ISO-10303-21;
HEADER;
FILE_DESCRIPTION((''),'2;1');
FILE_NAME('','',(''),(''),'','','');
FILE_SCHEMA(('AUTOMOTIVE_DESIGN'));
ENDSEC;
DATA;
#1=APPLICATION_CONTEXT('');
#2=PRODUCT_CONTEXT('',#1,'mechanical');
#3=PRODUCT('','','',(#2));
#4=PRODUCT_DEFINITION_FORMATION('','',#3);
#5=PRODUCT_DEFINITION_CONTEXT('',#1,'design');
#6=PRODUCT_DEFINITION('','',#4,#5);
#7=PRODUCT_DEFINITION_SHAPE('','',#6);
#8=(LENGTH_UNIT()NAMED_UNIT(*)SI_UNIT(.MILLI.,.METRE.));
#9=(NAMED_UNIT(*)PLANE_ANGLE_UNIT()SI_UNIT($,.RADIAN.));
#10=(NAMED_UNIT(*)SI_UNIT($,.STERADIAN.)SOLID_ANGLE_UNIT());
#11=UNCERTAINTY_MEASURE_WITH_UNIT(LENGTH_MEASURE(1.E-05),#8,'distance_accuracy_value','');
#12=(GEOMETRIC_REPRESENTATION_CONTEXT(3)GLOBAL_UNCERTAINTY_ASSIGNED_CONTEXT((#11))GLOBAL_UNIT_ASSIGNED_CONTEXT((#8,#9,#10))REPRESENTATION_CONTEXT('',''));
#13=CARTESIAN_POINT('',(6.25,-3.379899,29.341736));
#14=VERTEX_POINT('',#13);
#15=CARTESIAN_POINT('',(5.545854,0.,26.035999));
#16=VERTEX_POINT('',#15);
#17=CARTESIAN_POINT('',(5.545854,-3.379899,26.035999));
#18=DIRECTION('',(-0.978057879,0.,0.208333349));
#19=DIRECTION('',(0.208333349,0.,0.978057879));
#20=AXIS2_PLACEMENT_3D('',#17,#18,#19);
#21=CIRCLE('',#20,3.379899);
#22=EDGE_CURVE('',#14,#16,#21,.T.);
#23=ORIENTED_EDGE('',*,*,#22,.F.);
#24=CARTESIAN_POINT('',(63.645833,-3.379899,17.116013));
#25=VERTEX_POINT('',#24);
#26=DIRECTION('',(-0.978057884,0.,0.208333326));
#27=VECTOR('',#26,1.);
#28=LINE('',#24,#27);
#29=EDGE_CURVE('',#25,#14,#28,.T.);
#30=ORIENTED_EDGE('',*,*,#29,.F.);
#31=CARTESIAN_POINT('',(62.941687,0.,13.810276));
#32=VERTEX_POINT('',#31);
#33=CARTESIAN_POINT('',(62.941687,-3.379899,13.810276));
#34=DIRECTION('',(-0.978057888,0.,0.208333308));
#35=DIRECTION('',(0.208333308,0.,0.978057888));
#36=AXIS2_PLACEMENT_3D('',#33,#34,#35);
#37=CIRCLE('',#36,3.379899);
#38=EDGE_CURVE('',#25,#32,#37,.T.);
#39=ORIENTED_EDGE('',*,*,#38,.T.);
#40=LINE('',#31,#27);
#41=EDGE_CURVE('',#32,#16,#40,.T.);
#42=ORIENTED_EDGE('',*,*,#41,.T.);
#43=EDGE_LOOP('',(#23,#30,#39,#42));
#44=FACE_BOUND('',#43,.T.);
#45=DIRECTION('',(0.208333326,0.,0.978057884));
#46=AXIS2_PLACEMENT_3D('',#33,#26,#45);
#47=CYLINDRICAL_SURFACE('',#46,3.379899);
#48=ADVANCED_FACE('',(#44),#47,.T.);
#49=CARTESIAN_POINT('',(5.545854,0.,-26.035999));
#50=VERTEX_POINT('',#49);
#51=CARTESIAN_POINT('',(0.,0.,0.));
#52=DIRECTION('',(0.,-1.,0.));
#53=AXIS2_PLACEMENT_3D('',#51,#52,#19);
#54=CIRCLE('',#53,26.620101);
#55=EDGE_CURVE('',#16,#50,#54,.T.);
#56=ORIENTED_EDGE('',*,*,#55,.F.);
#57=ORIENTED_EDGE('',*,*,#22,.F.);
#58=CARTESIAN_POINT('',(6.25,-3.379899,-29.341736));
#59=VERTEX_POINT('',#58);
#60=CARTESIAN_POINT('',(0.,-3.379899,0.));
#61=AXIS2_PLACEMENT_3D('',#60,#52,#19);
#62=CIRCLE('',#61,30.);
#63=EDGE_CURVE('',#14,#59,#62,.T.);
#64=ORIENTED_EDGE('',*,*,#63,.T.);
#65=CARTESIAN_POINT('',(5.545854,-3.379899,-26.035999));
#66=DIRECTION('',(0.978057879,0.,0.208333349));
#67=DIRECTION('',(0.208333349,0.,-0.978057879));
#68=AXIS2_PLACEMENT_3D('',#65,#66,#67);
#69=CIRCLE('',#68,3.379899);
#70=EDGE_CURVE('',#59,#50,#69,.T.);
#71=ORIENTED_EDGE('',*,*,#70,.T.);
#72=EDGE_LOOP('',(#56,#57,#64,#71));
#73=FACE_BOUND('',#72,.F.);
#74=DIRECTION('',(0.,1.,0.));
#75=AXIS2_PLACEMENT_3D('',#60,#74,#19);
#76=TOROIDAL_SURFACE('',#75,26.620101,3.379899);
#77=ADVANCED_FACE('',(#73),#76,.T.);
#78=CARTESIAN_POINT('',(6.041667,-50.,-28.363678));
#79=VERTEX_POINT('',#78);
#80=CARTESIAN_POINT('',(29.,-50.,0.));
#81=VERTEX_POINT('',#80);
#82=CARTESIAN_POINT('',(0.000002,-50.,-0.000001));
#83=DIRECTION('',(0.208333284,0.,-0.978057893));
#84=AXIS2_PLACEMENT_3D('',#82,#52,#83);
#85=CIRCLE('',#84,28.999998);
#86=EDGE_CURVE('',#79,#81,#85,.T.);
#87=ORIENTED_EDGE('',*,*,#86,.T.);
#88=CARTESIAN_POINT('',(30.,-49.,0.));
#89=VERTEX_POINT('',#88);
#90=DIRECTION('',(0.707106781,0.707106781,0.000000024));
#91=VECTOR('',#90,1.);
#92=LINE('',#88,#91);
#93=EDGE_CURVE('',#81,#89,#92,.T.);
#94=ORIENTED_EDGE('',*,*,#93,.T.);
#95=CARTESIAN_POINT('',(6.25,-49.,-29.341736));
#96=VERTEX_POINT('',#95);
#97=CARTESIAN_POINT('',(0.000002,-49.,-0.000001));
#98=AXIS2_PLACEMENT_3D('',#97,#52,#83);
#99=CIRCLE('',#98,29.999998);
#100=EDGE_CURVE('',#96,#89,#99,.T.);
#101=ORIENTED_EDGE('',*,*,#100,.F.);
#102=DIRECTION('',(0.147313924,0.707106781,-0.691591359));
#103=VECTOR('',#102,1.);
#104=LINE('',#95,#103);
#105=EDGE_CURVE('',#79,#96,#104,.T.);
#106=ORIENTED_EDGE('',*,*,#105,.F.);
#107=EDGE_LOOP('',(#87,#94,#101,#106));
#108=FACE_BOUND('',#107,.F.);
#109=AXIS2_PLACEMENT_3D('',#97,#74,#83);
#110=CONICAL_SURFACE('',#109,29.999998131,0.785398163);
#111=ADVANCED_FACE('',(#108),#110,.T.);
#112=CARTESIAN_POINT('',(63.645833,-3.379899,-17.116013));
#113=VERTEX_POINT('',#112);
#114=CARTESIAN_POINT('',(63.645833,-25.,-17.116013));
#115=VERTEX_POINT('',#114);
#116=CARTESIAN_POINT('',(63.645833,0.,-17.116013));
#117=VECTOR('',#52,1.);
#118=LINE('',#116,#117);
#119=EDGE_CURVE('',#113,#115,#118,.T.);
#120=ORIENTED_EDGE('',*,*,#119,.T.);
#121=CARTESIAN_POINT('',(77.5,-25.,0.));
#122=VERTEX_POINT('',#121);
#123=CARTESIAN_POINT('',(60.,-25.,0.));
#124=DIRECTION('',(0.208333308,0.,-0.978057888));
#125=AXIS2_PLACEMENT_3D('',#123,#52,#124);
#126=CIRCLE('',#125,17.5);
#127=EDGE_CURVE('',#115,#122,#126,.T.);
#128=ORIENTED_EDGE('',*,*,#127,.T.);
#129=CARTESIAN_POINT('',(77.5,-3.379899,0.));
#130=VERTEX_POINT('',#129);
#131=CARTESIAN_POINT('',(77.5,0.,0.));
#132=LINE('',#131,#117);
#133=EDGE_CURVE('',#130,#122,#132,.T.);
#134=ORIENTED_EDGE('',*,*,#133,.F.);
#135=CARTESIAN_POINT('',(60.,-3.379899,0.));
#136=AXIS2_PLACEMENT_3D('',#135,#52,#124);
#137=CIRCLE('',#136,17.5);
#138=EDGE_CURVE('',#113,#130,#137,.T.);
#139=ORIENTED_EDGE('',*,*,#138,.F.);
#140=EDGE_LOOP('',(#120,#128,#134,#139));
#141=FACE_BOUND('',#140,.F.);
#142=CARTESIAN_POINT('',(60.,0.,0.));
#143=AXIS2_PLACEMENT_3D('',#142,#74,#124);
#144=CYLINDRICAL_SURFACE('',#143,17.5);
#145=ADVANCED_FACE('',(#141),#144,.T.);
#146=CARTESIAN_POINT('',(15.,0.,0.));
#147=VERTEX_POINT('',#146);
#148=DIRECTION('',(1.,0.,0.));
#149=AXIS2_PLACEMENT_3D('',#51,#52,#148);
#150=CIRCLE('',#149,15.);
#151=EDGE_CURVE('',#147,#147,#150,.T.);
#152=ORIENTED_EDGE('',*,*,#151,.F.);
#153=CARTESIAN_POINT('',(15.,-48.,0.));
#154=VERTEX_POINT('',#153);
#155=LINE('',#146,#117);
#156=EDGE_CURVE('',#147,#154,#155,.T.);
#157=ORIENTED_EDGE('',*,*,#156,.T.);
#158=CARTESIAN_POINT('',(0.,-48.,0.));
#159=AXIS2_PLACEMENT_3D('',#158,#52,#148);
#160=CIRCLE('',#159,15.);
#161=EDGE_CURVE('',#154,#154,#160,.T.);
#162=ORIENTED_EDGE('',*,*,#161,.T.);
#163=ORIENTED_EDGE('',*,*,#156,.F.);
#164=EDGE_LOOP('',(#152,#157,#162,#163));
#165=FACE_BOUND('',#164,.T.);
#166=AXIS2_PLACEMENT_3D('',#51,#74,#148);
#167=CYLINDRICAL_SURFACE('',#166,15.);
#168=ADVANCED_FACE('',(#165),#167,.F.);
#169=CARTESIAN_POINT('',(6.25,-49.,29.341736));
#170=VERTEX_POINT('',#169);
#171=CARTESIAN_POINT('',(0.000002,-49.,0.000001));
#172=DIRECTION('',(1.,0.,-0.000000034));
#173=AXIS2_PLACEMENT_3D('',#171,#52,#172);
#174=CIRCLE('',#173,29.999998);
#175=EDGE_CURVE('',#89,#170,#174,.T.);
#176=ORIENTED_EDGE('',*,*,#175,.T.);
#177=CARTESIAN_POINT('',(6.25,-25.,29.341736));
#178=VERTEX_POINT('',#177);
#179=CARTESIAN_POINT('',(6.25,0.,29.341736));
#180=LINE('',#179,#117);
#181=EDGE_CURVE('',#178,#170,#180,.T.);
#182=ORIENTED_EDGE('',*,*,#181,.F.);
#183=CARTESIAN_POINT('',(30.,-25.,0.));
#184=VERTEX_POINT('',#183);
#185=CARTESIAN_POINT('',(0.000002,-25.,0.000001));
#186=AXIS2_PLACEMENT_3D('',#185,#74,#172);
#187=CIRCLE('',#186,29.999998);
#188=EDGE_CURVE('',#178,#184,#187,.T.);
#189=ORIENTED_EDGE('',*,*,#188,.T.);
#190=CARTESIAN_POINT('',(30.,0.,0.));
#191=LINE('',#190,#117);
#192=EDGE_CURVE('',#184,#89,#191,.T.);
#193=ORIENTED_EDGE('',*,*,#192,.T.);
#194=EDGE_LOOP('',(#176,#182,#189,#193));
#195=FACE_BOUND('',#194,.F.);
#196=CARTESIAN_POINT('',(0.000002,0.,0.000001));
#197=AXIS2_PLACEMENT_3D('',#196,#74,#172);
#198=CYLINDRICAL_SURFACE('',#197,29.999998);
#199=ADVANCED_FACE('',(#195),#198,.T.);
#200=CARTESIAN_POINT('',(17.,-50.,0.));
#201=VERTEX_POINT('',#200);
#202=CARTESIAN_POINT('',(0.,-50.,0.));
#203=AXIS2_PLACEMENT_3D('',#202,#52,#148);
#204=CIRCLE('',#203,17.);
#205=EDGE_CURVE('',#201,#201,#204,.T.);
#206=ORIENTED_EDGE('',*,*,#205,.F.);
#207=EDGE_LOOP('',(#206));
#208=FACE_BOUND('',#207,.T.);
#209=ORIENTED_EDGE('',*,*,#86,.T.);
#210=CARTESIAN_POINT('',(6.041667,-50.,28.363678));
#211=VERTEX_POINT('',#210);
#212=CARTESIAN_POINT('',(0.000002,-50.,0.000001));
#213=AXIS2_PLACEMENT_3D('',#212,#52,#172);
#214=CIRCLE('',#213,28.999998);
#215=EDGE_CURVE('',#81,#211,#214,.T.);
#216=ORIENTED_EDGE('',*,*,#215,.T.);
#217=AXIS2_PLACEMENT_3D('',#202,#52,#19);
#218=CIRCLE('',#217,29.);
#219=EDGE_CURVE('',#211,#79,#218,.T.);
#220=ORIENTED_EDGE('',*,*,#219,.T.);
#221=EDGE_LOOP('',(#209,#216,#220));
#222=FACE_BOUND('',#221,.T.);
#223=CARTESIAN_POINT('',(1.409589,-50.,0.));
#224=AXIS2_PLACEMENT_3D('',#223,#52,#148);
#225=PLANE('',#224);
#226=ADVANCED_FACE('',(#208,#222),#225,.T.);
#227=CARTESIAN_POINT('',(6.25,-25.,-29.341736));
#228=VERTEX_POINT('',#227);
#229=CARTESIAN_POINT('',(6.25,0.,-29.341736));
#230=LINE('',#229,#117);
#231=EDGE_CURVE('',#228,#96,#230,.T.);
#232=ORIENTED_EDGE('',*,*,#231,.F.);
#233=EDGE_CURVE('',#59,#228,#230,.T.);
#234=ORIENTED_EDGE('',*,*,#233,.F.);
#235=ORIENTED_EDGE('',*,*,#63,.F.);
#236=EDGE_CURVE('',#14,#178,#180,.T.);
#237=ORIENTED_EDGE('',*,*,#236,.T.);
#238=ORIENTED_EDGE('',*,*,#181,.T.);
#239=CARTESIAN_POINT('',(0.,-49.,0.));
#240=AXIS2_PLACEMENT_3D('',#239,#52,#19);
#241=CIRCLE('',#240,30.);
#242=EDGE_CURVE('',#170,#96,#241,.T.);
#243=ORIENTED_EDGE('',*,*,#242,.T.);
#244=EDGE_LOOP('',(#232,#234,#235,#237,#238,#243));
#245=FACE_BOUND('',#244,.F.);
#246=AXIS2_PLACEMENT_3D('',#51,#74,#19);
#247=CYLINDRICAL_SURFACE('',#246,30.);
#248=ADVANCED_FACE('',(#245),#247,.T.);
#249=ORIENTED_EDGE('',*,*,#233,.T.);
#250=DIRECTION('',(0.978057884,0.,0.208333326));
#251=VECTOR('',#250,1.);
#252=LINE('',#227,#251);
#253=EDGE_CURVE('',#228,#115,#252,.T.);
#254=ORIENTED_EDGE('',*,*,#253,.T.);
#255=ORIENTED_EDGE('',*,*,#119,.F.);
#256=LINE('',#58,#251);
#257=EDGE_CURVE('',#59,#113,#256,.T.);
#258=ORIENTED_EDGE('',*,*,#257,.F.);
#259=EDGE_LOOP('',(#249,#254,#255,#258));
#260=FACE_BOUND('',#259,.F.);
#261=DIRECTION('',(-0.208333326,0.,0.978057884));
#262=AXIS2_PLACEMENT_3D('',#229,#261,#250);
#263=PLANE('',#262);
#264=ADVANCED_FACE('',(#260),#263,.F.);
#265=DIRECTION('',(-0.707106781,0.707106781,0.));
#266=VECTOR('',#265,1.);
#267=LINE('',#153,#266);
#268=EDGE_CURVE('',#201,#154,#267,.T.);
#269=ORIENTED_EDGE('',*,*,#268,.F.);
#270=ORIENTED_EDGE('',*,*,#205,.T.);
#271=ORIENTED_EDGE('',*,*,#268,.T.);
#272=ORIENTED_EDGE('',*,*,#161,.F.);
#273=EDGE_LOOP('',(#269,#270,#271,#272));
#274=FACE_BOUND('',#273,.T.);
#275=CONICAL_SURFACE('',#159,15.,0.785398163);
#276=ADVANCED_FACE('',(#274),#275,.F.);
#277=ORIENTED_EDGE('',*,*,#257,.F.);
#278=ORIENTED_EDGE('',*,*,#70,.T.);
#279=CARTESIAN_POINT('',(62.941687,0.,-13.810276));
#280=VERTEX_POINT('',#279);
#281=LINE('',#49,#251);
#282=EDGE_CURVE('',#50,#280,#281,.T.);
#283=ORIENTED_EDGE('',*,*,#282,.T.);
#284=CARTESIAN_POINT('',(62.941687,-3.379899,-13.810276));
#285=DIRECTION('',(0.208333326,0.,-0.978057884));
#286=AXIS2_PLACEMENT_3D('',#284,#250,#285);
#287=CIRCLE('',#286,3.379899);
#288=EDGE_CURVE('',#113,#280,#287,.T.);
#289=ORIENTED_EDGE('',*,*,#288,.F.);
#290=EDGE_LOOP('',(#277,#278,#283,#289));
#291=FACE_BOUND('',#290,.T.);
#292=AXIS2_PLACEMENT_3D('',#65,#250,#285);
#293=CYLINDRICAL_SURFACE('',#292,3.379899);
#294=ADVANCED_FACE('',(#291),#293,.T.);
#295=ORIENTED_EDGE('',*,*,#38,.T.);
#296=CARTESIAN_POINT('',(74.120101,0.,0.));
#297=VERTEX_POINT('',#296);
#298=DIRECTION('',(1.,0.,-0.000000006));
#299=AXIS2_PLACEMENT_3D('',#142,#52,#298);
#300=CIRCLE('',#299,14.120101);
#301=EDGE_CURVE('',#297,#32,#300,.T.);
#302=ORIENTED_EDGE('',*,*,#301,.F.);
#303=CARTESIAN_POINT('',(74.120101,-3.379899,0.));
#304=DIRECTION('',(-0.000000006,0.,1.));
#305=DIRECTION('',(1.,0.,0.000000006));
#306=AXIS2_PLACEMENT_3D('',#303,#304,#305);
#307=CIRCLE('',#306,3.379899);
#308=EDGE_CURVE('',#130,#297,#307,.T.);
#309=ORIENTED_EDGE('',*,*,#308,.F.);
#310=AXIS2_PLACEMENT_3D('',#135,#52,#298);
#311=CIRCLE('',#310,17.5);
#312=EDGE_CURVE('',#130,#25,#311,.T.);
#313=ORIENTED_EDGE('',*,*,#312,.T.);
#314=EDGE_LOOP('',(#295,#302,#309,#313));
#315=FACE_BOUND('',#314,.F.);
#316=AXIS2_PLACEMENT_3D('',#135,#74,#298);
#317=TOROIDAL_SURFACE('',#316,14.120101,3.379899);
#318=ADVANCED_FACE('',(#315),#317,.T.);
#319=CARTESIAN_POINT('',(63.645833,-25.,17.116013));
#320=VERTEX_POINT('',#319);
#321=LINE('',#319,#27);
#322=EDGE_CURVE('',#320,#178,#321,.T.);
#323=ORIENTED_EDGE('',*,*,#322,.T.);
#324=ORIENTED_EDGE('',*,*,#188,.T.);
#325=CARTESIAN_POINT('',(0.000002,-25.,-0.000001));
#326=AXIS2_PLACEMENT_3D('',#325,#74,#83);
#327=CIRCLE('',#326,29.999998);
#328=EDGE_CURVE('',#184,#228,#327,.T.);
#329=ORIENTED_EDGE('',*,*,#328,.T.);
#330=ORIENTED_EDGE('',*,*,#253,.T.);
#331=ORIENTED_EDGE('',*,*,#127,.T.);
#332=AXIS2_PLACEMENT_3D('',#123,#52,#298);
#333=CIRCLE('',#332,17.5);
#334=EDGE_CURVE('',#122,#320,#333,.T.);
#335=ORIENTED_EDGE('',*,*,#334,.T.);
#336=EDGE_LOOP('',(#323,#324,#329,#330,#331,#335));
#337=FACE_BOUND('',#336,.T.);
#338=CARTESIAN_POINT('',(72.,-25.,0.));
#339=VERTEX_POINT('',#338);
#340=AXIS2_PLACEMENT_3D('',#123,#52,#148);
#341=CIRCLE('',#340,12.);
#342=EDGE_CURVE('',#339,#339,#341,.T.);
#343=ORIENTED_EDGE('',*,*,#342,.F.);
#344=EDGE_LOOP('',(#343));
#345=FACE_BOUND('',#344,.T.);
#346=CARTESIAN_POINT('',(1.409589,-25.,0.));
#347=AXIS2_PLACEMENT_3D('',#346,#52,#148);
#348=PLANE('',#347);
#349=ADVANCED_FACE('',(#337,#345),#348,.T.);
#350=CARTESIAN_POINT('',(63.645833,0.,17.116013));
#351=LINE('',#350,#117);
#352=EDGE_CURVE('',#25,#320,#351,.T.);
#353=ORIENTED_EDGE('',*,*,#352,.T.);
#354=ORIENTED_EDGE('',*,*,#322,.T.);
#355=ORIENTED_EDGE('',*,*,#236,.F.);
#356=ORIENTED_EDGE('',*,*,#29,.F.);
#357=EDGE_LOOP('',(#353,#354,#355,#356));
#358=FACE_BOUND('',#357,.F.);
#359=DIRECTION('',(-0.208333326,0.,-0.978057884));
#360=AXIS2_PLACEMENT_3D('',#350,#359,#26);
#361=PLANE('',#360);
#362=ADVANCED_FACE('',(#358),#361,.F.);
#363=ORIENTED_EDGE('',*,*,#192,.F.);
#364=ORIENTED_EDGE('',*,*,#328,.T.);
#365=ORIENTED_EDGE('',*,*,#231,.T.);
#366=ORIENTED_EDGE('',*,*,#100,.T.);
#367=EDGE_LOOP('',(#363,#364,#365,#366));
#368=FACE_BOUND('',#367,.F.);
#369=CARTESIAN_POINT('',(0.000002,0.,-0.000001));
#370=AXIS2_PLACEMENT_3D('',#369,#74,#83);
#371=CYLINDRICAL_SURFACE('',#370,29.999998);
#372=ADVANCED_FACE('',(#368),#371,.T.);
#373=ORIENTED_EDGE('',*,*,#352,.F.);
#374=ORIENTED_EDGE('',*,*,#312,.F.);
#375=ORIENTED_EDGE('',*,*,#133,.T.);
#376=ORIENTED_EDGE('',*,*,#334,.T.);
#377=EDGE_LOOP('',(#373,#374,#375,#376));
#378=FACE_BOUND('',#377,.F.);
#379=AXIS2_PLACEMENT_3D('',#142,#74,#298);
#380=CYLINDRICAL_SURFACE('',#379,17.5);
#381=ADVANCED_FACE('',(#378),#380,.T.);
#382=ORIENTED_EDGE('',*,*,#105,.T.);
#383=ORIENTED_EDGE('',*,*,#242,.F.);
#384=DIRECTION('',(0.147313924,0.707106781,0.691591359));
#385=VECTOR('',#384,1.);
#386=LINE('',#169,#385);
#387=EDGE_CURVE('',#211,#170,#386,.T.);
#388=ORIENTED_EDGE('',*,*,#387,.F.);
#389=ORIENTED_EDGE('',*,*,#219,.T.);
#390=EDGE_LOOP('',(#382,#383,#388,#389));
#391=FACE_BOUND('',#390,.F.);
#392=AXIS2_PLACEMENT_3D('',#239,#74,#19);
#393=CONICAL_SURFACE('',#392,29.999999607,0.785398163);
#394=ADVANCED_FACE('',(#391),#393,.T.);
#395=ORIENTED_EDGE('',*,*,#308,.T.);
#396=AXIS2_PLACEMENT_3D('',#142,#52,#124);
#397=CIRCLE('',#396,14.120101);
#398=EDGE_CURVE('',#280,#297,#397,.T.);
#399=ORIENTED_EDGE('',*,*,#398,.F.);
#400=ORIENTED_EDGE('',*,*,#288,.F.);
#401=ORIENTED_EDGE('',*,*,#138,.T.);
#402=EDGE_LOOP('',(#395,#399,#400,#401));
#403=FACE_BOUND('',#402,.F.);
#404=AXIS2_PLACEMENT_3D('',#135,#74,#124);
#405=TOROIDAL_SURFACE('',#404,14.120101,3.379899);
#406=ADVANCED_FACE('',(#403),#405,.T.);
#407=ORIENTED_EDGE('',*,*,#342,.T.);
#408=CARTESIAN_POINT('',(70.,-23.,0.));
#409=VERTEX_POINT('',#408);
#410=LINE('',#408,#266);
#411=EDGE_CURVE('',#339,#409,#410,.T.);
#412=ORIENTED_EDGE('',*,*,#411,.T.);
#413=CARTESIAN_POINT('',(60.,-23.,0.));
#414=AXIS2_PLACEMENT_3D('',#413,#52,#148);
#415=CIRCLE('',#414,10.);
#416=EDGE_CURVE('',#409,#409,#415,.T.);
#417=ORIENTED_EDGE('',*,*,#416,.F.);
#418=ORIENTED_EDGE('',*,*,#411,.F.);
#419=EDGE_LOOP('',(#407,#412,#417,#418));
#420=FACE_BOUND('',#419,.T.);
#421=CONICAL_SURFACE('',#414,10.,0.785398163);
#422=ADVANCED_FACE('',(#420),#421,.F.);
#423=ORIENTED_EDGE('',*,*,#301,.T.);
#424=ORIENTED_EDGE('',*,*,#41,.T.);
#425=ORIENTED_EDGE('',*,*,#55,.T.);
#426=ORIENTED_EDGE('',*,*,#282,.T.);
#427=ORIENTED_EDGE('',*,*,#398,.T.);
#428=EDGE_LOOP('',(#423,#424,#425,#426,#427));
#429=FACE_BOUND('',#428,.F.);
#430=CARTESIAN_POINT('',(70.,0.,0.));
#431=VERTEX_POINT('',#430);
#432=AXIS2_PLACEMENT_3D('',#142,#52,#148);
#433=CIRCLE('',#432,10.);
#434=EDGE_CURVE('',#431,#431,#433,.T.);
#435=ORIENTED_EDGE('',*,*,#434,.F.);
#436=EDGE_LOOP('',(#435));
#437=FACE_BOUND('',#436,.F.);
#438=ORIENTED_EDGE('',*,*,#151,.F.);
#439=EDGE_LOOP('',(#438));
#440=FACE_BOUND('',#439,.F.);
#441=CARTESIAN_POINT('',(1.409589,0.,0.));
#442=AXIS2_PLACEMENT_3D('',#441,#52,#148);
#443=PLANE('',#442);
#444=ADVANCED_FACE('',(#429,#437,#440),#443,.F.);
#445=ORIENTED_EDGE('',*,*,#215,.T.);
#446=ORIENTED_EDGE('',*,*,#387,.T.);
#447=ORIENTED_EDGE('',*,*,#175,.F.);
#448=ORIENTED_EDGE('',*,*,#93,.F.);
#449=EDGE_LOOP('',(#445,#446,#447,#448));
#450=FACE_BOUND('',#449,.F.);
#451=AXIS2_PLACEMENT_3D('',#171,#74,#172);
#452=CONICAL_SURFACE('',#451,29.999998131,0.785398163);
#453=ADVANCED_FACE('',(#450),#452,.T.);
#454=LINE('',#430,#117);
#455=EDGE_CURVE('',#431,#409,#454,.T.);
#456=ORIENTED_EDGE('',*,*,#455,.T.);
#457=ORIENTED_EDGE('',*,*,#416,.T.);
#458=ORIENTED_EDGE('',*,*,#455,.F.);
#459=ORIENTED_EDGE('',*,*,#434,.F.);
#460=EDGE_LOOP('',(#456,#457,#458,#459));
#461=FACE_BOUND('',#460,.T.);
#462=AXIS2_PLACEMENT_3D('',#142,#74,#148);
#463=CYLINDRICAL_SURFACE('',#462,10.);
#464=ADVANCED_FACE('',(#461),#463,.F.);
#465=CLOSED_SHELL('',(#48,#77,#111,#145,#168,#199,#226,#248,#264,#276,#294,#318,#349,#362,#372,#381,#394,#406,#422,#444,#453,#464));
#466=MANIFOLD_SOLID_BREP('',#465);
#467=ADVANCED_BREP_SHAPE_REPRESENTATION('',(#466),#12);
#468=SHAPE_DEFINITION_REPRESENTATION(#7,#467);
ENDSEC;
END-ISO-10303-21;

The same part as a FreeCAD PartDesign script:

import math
import FreeCAD as App
import Part
import Sketcher

V = App.Vector


def edges_at(feature, points):
    """Names of the edges that pass closest to the given points."""
    edges = feature.Shape.Edges
    near = lambda p: min(range(len(edges)), key=lambda i: edges[i].distToShape(Part.Vertex(*p))[0])
    return sorted({f"Edge{near(p) + 1}" for p in points})

doc = App.newDocument("Part")
body = doc.addObject("PartDesign::Body", "Body")

# Sketch on XZ plane
sketch1 = body.newObject("Sketcher::SketchObject", "Sketch")
sketch1.AttachmentSupport = (doc.getObject("XZ_Plane"), [""])
sketch1.MapMode = "FlatFace"
sketch1.addGeometry([
    Part.ArcOfCircle(Part.Circle(V(0, 0, 0), V(0, 0, 1), 30), math.radians(77.9753), math.radians(282.0247)),  # 0
    Part.LineSegment(V(6.25, -29.341736, 0), V(63.645833, -17.116013, 0)),  # 1
    Part.ArcOfCircle(Part.Circle(V(60, 0, 0), V(0, 0, 1), 17.5), math.radians(-77.975302), math.radians(0)),  # 2
    Part.ArcOfCircle(Part.Circle(V(60, 0, 0), V(0, 0, 1), 17.5), math.radians(0), math.radians(77.975302)),  # 3
    Part.LineSegment(V(63.645833, 17.116013, 0), V(6.25, 29.341736, 0)),  # 4
    Part.Circle(V(0, 0, 0), V(0, 0, 1), 15),  # 5
    Part.Circle(V(60, 0, 0), V(0, 0, 1), 10),  # 6
], False)
sketch1.addConstraint([
    Sketcher.Constraint("Tangent", 0, 2, 1, 1),
    Sketcher.Constraint("Tangent", 1, 2, 2, 1),
    Sketcher.Constraint("Tangent", 2, 2, 3, 1),
    Sketcher.Constraint("Tangent", 3, 2, 4, 1),
    Sketcher.Constraint("Tangent", 4, 2, 0, 1),
    Sketcher.Constraint("Coincident", 0, 3, -1, 1),
    Sketcher.Constraint("Coincident", 5, 3, -1, 1),
    Sketcher.Constraint("Coincident", 6, 3, 2, 3),
    Sketcher.Constraint("Equal", 2, 3),
    Sketcher.Constraint("PointOnObject", 2, 3, -1),
    Sketcher.Constraint("PointOnObject", 2, 2, -1),
    Sketcher.Constraint("Diameter", 5, 30.0),
    Sketcher.Constraint("Diameter", 6, 20.0),
    Sketcher.Constraint("Radius", 0, 30.0),
    Sketcher.Constraint("Radius", 2, 17.5),
    Sketcher.Constraint("DistanceX", -1, 1, 2, 3, 60.0),
])
pad1 = body.newObject("PartDesign::Pad", "Pad")
pad1.Profile = sketch1
pad1.Length = 25

# Sketch on XZ plane
sketch2 = body.newObject("Sketcher::SketchObject", "Sketch001")
sketch2.AttachmentSupport = (doc.getObject("XZ_Plane"), [""])
sketch2.MapMode = "FlatFace"
sketch2.addGeometry([
    Part.ArcOfCircle(Part.Circle(V(0.000002, -0.000001, 0), V(0, 0, 1), 29.999998), math.radians(-77.975304), math.radians(0.000002)),
    Part.ArcOfCircle(Part.Circle(V(0.000002, 0.000001, 0), V(0, 0, 1), 29.999998), math.radians(-0.000002), math.radians(77.975304)),
    Part.ArcOfCircle(Part.Circle(V(0, 0, 0), V(0, 0, 1), 30), math.radians(77.9753), math.radians(282.0247)),
    Part.Circle(V(0, 0, 0), V(0, 0, 1), 15),
], False)
sketch2.addConstraint([
    Sketcher.Constraint("Tangent", 0, 2, 1, 1),
    Sketcher.Constraint("Tangent", 1, 2, 2, 1),
    Sketcher.Constraint("Tangent", 2, 2, 0, 1),
    Sketcher.Constraint("Coincident", 0, 3, -1, 1),
    Sketcher.Constraint("Coincident", 3, 3, -1, 1),
    Sketcher.Constraint("PointOnObject", 0, 2, -1),
    Sketcher.Constraint("Vertical", 1, 2, 2, 2),
    Sketcher.Constraint("Diameter", 3, 30.0),
    Sketcher.Constraint("Radius", 0, 29.999998),
    Sketcher.Constraint("DistanceX", -1, 1, 1, 2, 6.25),
])
pad2 = body.newObject("PartDesign::Pad", "Pad001")
pad2.Profile = sketch2
pad2.Length = 50
doc.recompute()

fillet = body.newObject("PartDesign::Fillet", "Fillet")
fillet.Base = (pad2, edges_at(pad2, [
    (-30, 0, 0),
    (34.948, 0, -23.229),
    (73.602, 0, -11.01),
    (34.948, 0, 23.229),
]))
fillet.Radius = 3.379899
doc.recompute()

chamfer = body.newObject("PartDesign::Chamfer", "Chamfer")
chamfer.Base = (fillet, edges_at(fillet, [(-15, -50, 0), (50, -25, 0)]))
chamfer.Size = 2
doc.recompute()

chamfer2 = body.newObject("PartDesign::Chamfer", "Chamfer001")
chamfer2.Base = (chamfer, edges_at(chamfer, [(-30, -50, 0)]))
chamfer2.Size = 1

doc.recompute()
